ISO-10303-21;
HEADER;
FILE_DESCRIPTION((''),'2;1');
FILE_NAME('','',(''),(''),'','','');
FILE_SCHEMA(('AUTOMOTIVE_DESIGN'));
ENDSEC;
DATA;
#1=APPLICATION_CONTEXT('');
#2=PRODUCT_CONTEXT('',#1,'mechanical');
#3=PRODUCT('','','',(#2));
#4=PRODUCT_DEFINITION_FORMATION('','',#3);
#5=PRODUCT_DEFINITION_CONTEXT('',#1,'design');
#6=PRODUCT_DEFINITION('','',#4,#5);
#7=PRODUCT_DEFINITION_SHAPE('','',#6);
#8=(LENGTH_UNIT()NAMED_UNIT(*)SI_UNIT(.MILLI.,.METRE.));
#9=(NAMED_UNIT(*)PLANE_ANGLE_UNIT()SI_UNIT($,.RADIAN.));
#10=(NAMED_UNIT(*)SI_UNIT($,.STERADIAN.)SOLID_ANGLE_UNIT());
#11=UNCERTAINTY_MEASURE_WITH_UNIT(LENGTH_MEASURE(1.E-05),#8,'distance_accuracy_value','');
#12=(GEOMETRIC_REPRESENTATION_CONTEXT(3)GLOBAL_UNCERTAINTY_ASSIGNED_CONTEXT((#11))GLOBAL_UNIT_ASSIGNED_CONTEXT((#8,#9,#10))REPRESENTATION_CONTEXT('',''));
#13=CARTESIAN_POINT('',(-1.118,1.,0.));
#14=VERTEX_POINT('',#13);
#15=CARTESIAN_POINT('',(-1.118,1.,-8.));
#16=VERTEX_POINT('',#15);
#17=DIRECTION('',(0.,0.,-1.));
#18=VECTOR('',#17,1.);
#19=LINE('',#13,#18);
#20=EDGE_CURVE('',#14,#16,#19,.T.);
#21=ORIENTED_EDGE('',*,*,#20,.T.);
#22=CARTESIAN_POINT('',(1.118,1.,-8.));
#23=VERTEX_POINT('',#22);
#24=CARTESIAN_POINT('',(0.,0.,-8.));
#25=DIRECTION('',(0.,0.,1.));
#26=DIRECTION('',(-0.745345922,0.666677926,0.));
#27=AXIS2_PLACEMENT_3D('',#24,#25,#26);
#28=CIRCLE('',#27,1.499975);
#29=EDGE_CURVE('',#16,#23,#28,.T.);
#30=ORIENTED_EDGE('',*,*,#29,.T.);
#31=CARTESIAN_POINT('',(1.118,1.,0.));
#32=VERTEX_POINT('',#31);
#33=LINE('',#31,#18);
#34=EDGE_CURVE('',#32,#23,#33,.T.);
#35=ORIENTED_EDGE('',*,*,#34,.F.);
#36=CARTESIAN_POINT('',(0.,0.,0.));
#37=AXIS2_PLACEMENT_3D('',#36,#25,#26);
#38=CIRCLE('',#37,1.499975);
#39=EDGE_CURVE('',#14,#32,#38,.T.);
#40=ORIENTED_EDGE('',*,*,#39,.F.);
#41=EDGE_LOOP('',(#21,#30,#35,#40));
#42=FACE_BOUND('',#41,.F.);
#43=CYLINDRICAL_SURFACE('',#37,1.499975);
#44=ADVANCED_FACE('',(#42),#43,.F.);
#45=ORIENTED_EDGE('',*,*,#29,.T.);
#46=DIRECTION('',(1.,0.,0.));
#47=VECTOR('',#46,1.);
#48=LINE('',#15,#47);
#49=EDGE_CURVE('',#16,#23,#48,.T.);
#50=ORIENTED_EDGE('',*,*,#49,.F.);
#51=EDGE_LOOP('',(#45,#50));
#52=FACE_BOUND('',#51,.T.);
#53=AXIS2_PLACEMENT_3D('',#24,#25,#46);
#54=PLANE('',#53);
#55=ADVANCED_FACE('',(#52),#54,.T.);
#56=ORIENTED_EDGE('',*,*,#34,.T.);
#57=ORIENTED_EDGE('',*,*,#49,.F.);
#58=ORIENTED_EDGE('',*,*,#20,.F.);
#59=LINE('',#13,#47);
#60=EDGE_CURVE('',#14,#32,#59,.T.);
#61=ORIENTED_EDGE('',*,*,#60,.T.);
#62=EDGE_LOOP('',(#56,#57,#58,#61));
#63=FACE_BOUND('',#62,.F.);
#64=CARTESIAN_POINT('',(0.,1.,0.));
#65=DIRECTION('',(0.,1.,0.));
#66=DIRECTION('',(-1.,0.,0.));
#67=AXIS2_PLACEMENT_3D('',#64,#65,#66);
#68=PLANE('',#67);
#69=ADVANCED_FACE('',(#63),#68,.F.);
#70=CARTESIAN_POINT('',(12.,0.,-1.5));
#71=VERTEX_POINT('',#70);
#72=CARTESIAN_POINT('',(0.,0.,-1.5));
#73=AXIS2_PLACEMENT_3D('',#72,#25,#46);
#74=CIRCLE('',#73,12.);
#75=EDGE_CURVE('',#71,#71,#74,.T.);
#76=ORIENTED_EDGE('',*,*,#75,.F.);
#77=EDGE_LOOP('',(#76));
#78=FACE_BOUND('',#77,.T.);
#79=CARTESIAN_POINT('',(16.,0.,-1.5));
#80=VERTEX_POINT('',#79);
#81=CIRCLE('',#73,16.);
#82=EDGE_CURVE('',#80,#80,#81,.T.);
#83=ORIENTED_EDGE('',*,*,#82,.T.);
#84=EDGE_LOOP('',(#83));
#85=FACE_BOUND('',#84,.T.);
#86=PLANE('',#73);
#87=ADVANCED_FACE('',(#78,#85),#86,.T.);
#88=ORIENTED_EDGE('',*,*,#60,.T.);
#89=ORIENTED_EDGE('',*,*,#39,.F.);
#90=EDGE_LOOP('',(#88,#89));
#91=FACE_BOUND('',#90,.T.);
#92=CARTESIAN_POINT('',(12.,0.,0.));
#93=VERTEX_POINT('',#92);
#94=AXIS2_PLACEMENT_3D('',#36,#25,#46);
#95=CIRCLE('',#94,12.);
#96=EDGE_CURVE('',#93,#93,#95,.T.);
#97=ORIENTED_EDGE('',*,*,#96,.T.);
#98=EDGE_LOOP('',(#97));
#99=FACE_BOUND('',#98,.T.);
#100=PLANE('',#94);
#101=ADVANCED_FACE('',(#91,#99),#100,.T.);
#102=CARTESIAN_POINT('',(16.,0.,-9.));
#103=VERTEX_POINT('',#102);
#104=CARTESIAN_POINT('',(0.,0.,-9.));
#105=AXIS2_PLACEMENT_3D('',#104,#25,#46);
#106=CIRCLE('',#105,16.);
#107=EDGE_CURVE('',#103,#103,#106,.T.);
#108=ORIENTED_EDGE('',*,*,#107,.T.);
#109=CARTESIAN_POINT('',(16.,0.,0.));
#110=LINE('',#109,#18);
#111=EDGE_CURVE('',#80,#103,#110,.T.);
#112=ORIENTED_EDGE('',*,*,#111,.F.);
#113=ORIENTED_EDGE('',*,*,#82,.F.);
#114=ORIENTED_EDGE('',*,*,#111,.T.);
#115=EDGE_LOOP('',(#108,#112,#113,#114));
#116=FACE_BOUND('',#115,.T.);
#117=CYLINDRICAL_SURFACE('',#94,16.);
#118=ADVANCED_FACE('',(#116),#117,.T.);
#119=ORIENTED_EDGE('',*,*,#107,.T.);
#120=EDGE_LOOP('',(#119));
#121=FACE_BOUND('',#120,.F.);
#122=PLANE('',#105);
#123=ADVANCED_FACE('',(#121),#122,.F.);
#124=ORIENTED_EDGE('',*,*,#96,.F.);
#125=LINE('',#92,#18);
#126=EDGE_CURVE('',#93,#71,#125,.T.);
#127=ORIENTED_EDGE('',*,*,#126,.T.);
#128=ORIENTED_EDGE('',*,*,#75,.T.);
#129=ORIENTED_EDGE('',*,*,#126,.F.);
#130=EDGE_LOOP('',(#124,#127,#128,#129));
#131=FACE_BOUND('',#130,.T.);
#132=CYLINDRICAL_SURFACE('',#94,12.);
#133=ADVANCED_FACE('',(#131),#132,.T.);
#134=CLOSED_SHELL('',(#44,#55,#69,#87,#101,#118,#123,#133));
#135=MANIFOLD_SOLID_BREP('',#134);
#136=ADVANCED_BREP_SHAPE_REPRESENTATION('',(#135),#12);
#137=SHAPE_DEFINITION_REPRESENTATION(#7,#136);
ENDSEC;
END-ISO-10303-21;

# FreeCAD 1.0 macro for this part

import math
import FreeCAD as App
import Part
import Sketcher

V = App.Vector

doc = App.newDocument("Part")
body = doc.addObject("PartDesign::Body", "Body")

# Sketch on XY plane
sketch1 = body.newObject("Sketcher::SketchObject", "Sketch")
sketch1.AttachmentSupport = (doc.getObject("XY_Plane"), [""])
sketch1.MapMode = "FlatFace"
sketch1.addGeometry(Part.Circle(V(0, 0, 0), V(0, 0, 1), 16), False)
sketch1.addConstraint([
    Sketcher.Constraint("Coincident", 0, 3, -1, 1),
    Sketcher.Constraint("Diameter", 0, 32.0),
])
pad1 = body.newObject("PartDesign::Pad", "Pad")
pad1.Profile = sketch1
pad1.Length = 9
pad1.Reversed = True

# Sketch on XY plane
sketch2 = body.newObject("Sketcher::SketchObject", "Sketch001")
sketch2.AttachmentSupport = (doc.getObject("XY_Plane"), [""])
sketch2.MapMode = "FlatFace"
sketch2.addGeometry([
    Part.Circle(V(0, 0, 0), V(0, 0, 1), 16),
    Part.Circle(V(0, 0, 0), V(0, 0, 1), 12),
], False)
sketch2.addConstraint([
    Sketcher.Constraint("Coincident", 0, 3, -1, 1),
    Sketcher.Constraint("Coincident", 1, 3, -1, 1),
    Sketcher.Constraint("Diameter", 0, 32.0),
    Sketcher.Constraint("Diameter", 1, 24.0),
])
pocket1 = body.newObject("PartDesign::Pocket", "Pocket")
pocket1.Profile = sketch2
pocket1.Length = 1.5

# Sketch on XY plane
sketch3 = body.newObject("Sketcher::SketchObject", "Sketch002")
sketch3.AttachmentSupport = (doc.getObject("XY_Plane"), [""])
sketch3.MapMode = "FlatFace"
sketch3.addGeometry([
    Part.LineSegment(V(1.1, 1, 0), V(-1.1, 1, 0)),
    Part.ArcOfCircle(Part.Circle(V(0, 0, 0), V(0, 0, 1), 1.5), math.radians(138), math.radians(402)),
], False)
sketch3.addConstraint([
    Sketcher.Constraint("Coincident", 0, 1, 1, 2),
    Sketcher.Constraint("Coincident", 1, 1, 0, 2),
    Sketcher.Constraint("Horizontal", 0),
    Sketcher.Constraint("Coincident", 1, 3, -1, 1),
    Sketcher.Constraint("Radius", 1, 1.5),
    Sketcher.Constraint("DistanceY", -1, 1, 0, 1, 1.0),
])
pocket2 = body.newObject("PartDesign::Pocket", "Pocket001")
pocket2.Profile = sketch3
pocket2.Length = 8

doc.recompute()
